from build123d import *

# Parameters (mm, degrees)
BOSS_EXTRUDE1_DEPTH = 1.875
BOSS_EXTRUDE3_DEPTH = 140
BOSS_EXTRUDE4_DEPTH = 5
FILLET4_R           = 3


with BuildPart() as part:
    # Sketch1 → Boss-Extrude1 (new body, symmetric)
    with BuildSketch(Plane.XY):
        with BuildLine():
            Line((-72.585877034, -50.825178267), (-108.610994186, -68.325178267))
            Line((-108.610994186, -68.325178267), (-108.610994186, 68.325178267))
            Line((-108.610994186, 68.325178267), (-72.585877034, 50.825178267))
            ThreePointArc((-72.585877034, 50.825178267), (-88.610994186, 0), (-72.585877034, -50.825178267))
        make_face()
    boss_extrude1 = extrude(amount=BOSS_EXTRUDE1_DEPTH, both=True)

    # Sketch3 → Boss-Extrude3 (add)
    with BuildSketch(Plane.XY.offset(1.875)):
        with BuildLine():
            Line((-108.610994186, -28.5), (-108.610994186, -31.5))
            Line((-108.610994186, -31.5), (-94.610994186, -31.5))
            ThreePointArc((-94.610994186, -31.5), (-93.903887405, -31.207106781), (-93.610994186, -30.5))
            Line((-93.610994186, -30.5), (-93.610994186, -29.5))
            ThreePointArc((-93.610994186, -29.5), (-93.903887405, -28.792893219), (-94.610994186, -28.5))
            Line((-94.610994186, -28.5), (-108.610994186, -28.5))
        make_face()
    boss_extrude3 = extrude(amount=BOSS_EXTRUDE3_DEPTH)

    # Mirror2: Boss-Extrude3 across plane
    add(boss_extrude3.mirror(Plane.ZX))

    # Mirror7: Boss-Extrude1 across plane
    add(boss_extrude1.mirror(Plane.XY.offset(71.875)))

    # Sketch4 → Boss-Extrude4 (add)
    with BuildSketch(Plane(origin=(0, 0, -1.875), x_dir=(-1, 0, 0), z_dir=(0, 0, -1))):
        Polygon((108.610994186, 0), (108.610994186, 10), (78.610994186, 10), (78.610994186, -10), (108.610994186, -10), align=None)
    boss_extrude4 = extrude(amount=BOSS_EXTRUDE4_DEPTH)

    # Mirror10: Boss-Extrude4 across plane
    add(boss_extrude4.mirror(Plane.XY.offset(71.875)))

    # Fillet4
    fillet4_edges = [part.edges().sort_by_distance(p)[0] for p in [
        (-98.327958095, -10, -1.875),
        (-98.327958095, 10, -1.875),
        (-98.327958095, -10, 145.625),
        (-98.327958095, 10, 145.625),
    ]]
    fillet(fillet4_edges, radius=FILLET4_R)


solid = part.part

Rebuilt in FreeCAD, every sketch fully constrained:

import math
import FreeCAD as App
import Part
import Sketcher
Q = App.Units.Quantity


def edges_at(feature, points):
    """Names of the edges that pass closest to the given points."""
    edges = feature.Shape.Edges
    near = lambda p: min(range(len(edges)), key=lambda i: edges[i].distToShape(Part.Vertex(*p))[0])
    return sorted({f"Edge{near(p) + 1}" for p in points})

doc = App.newDocument("Part")
body = doc.addObject("PartDesign::Body", "Body")

# Sketch on XY plane
sketch1 = body.newObject("Sketcher::SketchObject", "Sketch")
sketch1.AttachmentSupport = (doc.getObject("XY_Plane"), [""])
sketch1.MapMode = "FlatFace"
sketch1.addGeometry([
    Part.LineSegment(App.Vector(-108.610994, -68.325178, 0), App.Vector(-72.585877, -50.825178, 0)),
    Part.ArcOfCircle(Part.Circle(App.Vector(0, 0, 0), App.Vector(0, 0, 1), 88.610994), math.radians(145), math.radians(215)),
    Part.LineSegment(App.Vector(-72.585877, 50.825178, 0), App.Vector(-108.610994, 68.325178, 0)),
    Part.LineSegment(App.Vector(-108.610994, 68.325178, 0), App.Vector(-108.610994, -68.325178, 0)),
], False)
sketch1.addConstraint([
    Sketcher.Constraint("Coincident", 0, 2, 1, 2),
    Sketcher.Constraint("Coincident", 1, 1, 2, 1),
    Sketcher.Constraint("Coincident", 2, 2, 3, 1),
    Sketcher.Constraint("Coincident", 3, 2, 0, 1),
    Sketcher.Constraint("Vertical", 3),
    Sketcher.Constraint("Coincident", 1, 3, -1, 1),
    Sketcher.Constraint("Vertical", 0, 2, 1, 1),
    Sketcher.Constraint("Equal", 0, 2),
    Sketcher.Constraint("DistanceY", 1, 1, 2, 2, Q("17.5 mm")),
    Sketcher.Constraint("Radius", 1, Q("88.610994 mm")),
    Sketcher.Constraint("DistanceY", 3, 2, 3, 1, Q("136.650357 mm")),
    Sketcher.Constraint("Distance", 0, Q("40.050706 mm")),
])
pad1 = body.newObject("PartDesign::Pad", "Pad")
pad1.Profile = sketch1
pad1.Length = 3.75
pad1.Midplane = True

# Sketch on XY plane
sketch2 = body.newObject("Sketcher::SketchObject", "Sketch001")
sketch2.AttachmentSupport = (doc.getObject("XY_Plane"), [""])
sketch2.MapMode = "FlatFace"
sketch2.AttachmentOffset = App.Placement(App.Vector(0, 0, 1.875), App.Rotation())
sketch2.addGeometry([
    Part.LineSegment(App.Vector(-108.610994, -28.5, 0), App.Vector(-108.610994, -31.5, 0)),  # 0
    Part.LineSegment(App.Vector(-108.610994, -31.5, 0), App.Vector(-94.610994, -31.5, 0)),  # 1
    Part.ArcOfCircle(Part.Circle(App.Vector(-94.610994, -30.5, 0), App.Vector(0, 0, 1), 1), math.radians(-90), math.radians(0)),  # 2
    Part.LineSegment(App.Vector(-93.610994, -30.5, 0), App.Vector(-93.610994, -29.5, 0)),  # 3
    Part.ArcOfCircle(Part.Circle(App.Vector(-94.610994, -29.5, 0), App.Vector(0, 0, 1), 1), math.radians(0), math.radians(90)),  # 4
    Part.LineSegment(App.Vector(-94.610994, -28.5, 0), App.Vector(-108.610994, -28.5, 0)),  # 5
], False)
sketch2.addConstraint([
    Sketcher.Constraint("Coincident", 0, 2, 1, 1),
    Sketcher.Constraint("Tangent", 1, 2, 2, 1),
    Sketcher.Constraint("Tangent", 2, 2, 3, 1),
    Sketcher.Constraint("Tangent", 3, 2, 4, 1),
    Sketcher.Constraint("Tangent", 4, 2, 5, 1),
    Sketcher.Constraint("Coincident", 5, 2, 0, 1),
    Sketcher.Constraint("Vertical", 0),
    Sketcher.Constraint("Horizontal", 1),
    Sketcher.Constraint("Vertical", 3),
    Sketcher.Constraint("Horizontal", 5),
    Sketcher.Constraint("Equal", 2, 4),
    Sketcher.Constraint("Radius", 2, Q("1 mm")),
    Sketcher.Constraint("DistanceX", 1, 1, 1, 2, Q("14 mm")),
    Sketcher.Constraint("DistanceY", 0, 2, 0, 1, Q("3 mm")),
    Sketcher.Constraint("DistanceY", 2, 3, -1, 1, Q("30.5 mm")),
    Sketcher.Constraint("DistanceX", 2, 3, -1, 1, Q("94.610994 mm")),
])
pad2 = body.newObject("PartDesign::Pad", "Pad001")
pad2.Profile = sketch2
pad2.Length = 140
doc.recompute()

mirrored = body.newObject("PartDesign::Mirrored", "Mirrored")
mirrored.Originals = [pad2]
mirrored.MirrorPlane = (doc.getObject("XZ_Plane"), [""])
body.Tip = mirrored
doc.recompute()

datumplane = body.newObject("PartDesign::Plane", "DatumPlane")
datumplane.AttachmentSupport = (doc.getObject("XY_Plane"), [""])
datumplane.MapMode = "FlatFace"
datumplane.AttachmentOffset = App.Placement(App.Vector(0, 0, 71.875), App.Rotation())
mirrored2 = body.newObject("PartDesign::Mirrored", "Mirrored001")
mirrored2.Originals = [pad1]
mirrored2.MirrorPlane = (datumplane, [""])
body.Tip = mirrored2

# Sketch on XY plane
sketch3 = body.newObject("Sketcher::SketchObject", "Sketch002")
sketch3.AttachmentSupport = (doc.getObject("XY_Plane"), [""])
sketch3.MapMode = "FlatFace"
sketch3.AttachmentOffset = App.Placement(App.Vector(0, 0, -1.875), App.Rotation())
sketch3.addGeometry([
    Part.LineSegment(App.Vector(-108.610994, 10, 0), App.Vector(-78.610994, 10, 0)),
    Part.LineSegment(App.Vector(-78.610994, 10, 0), App.Vector(-78.610994, -10, 0)),
    Part.LineSegment(App.Vector(-78.610994, -10, 0), App.Vector(-108.610994, -10, 0)),
    Part.LineSegment(App.Vector(-108.610994, -10, 0), App.Vector(-108.610994, 10, 0)),
], False)
sketch3.addConstraint([
    Sketcher.Constraint("Coincident", 0, 2, 1, 1),
    Sketcher.Constraint("Coincident", 1, 2, 2, 1),
    Sketcher.Constraint("Coincident", 2, 2, 3, 1),
    Sketcher.Constraint("Coincident", 3, 2, 0, 1),
    Sketcher.Constraint("Horizontal", 0),
    Sketcher.Constraint("Vertical", 1),
    Sketcher.Constraint("Horizontal", 2),
    Sketcher.Constraint("Vertical", 3),
    Sketcher.Constraint("DistanceX", 0, 1, 0, 2, Q("30 mm")),
    Sketcher.Constraint("DistanceY", 1, 2, 1, 1, Q("20 mm")),
    Sketcher.Constraint("DistanceY", -1, 1, 0, 2, Q("10 mm")),
    Sketcher.Constraint("DistanceX", 0, 2, -1, 1, Q("78.610994 mm")),
])
pad3 = body.newObject("PartDesign::Pad", "Pad002")
pad3.Profile = sketch3
pad3.Length = 5
pad3.Reversed = True
doc.recompute()

datumplane2 = body.newObject("PartDesign::Plane", "DatumPlane001")
datumplane2.AttachmentSupport = (doc.getObject("XY_Plane"), [""])
datumplane2.MapMode = "FlatFace"
datumplane2.AttachmentOffset = App.Placement(App.Vector(0, 0, 71.875), App.Rotation())
mirrored3 = body.newObject("PartDesign::Mirrored", "Mirrored002")
mirrored3.Originals = [pad3]
mirrored3.MirrorPlane = (datumplane2, [""])
body.Tip = mirrored3
doc.recompute()

fillet = body.newObject("PartDesign::Fillet", "Fillet")
fillet.Base = (mirrored3, edges_at(mirrored3, [
    (-98.328, -10, -1.875),
    (-98.328, 10, -1.875),
    (-98.328, -10, 145.625),
    (-98.328, 10, 145.625),
]))
fillet.Radius = 3

doc.recompute()
